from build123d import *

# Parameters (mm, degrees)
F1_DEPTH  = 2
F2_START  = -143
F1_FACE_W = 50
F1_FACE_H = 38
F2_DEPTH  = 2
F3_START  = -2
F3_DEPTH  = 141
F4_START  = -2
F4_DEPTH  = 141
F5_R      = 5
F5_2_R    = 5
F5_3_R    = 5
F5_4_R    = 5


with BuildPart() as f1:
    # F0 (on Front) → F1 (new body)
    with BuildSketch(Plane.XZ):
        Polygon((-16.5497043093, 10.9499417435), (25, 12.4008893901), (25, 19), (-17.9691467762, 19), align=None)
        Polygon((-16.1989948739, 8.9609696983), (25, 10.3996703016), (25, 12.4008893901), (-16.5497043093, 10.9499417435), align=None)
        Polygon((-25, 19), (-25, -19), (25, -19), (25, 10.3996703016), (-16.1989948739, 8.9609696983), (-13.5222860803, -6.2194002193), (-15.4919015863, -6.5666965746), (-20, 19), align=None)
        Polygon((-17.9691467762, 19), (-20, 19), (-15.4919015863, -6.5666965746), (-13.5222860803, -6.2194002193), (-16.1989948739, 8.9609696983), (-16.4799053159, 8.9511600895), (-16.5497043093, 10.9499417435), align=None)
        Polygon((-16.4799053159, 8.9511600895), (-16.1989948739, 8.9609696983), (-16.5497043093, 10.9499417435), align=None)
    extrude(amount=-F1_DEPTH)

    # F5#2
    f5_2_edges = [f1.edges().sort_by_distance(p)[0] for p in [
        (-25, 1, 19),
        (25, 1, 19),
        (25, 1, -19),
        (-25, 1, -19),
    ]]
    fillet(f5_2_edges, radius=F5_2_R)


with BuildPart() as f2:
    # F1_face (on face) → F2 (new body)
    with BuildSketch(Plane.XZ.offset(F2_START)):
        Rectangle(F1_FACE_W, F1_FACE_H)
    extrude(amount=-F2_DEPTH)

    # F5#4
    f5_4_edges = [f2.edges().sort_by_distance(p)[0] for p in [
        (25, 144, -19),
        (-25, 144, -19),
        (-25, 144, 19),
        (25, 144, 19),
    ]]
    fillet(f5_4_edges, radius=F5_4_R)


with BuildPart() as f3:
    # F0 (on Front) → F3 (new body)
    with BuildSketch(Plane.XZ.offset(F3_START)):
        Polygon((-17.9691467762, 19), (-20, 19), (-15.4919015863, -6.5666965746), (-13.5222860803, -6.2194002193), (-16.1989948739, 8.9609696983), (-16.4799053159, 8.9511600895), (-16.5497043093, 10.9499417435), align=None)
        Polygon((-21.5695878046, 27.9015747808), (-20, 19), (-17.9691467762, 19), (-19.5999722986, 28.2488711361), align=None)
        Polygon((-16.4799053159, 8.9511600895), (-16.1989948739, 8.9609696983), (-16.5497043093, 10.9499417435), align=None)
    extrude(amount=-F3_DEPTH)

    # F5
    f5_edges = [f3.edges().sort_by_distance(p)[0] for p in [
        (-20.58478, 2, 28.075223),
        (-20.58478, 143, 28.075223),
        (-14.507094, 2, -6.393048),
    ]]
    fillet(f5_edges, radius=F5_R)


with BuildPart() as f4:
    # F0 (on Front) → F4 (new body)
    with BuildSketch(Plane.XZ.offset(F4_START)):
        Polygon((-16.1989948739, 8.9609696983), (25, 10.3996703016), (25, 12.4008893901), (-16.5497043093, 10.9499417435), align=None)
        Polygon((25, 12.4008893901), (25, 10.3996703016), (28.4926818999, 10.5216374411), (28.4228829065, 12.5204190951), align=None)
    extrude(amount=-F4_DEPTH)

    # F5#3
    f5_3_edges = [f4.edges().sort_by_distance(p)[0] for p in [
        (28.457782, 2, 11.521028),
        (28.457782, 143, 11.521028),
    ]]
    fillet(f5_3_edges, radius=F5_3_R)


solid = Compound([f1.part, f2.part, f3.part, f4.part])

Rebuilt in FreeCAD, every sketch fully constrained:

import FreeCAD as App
import Part
import Sketcher
Q = App.Units.Quantity


def edges_at(feature, points):
    """Names of the edges that pass closest to the given points."""
    edges = feature.Shape.Edges
    near = lambda p: min(range(len(edges)), key=lambda i: edges[i].distToShape(Part.Vertex(*p))[0])
    return sorted({f"Edge{near(p) + 1}" for p in points})

doc = App.newDocument("Part")
body = doc.addObject("PartDesign::Body", "Body")

# Sketch on XZ plane
sketch1 = body.newObject("Sketcher::SketchObject", "Sketch")
sketch1.AttachmentSupport = (doc.getObject("XZ_Plane"), [""])
sketch1.MapMode = "FlatFace"
sketch1.addGeometry([
    Part.LineSegment(App.Vector(25, 19, 0), App.Vector(-25, 19, 0)),
    Part.LineSegment(App.Vector(-25, 19, 0), App.Vector(-25, -19, 0)),
    Part.LineSegment(App.Vector(-25, -19, 0), App.Vector(25, -19, 0)),
    Part.LineSegment(App.Vector(25, -19, 0), App.Vector(25, 19, 0)),
], False)
sketch1.addConstraint([
    Sketcher.Constraint("Coincident", 0, 2, 1, 1),
    Sketcher.Constraint("Coincident", 1, 2, 2, 1),
    Sketcher.Constraint("Coincident", 2, 2, 3, 1),
    Sketcher.Constraint("Coincident", 3, 2, 0, 1),
    Sketcher.Constraint("Horizontal", 0),
    Sketcher.Constraint("Vertical", 1),
    Sketcher.Constraint("Horizontal", 2),
    Sketcher.Constraint("Vertical", 3),
    Sketcher.Constraint("Symmetric", 0, 2, 2, 2, -1, 1),
    Sketcher.Constraint("DistanceX", 0, 2, 0, 1, Q("50 mm")),
    Sketcher.Constraint("DistanceY", 1, 2, 1, 1, Q("38 mm")),
])
pad1 = body.newObject("PartDesign::Pad", "Pad")
pad1.Profile = sketch1
pad1.Length = 2
pad1.Reversed = True
doc.recompute()

fillet = body.newObject("PartDesign::Fillet", "Fillet")
fillet.Base = (pad1, edges_at(pad1, [
    (-25, 1, 19),
    (25, 1, 19),
    (25, 1, -19),
    (-25, 1, -19),
]))
fillet.Radius = 5
body2 = doc.addObject("PartDesign::Body", "Body001")

# Sketch on XZ plane
sketch2 = body2.newObject("Sketcher::SketchObject", "Sketch001")
sketch2.AttachmentSupport = (doc.getObject("XZ_Plane001"), [""])
sketch2.MapMode = "FlatFace"
sketch2.AttachmentOffset = App.Placement(App.Vector(0, 0, -143), App.Rotation())
sketch2.addGeometry([
    Part.LineSegment(App.Vector(-25, 19, 0), App.Vector(-25, -19, 0)),
    Part.LineSegment(App.Vector(-25, -19, 0), App.Vector(25, -19, 0)),
    Part.LineSegment(App.Vector(25, -19, 0), App.Vector(25, 19, 0)),
    Part.LineSegment(App.Vector(25, 19, 0), App.Vector(-25, 19, 0)),
], False)
sketch2.addConstraint([
    Sketcher.Constraint("Coincident", 0, 2, 1, 1),
    Sketcher.Constraint("Coincident", 1, 2, 2, 1),
    Sketcher.Constraint("Coincident", 2, 2, 3, 1),
    Sketcher.Constraint("Coincident", 3, 2, 0, 1),
    Sketcher.Constraint("Vertical", 0),
    Sketcher.Constraint("Horizontal", 1),
    Sketcher.Constraint("Vertical", 2),
    Sketcher.Constraint("Horizontal", 3),
    Sketcher.Constraint("Symmetric", 0, 2, 2, 2, -1, 1),
    Sketcher.Constraint("DistanceX", 1, 1, 1, 2, Q("50 mm")),
    Sketcher.Constraint("DistanceY", 0, 2, 0, 1, Q("38 mm")),
])
pad2 = body2.newObject("PartDesign::Pad", "Pad001")
pad2.Profile = sketch2
pad2.Length = 2
pad2.Reversed = True
doc.recompute()

fillet2 = body2.newObject("PartDesign::Fillet", "Fillet001")
fillet2.Base = (pad2, edges_at(pad2, [
    (25, 144, -19),
    (-25, 144, -19),
    (-25, 144, 19),
    (25, 144, 19),
]))
fillet2.Radius = 5
body3 = doc.addObject("PartDesign::Body", "Body002")

# Sketch on XZ plane
sketch3 = body3.newObject("Sketcher::SketchObject", "Sketch002")
sketch3.AttachmentSupport = (doc.getObject("XZ_Plane002"), [""])
sketch3.MapMode = "FlatFace"
sketch3.AttachmentOffset = App.Placement(App.Vector(0, 0, -2), App.Rotation())
sketch3.addGeometry([
    Part.LineSegment(App.Vector(-20, 19, 0), App.Vector(-15.5, -6.6, 0)),  # 0
    Part.LineSegment(App.Vector(-15.5, -6.6, 0), App.Vector(-13.5, -6.2, 0)),  # 1
    Part.LineSegment(App.Vector(-13.5, -6.2, 0), App.Vector(-16.2, 9, 0)),  # 2
    Part.LineSegment(App.Vector(-16.2, 9, 0), App.Vector(-16.5, 10.9, 0)),  # 3
    Part.LineSegment(App.Vector(-16.5, 10.9, 0), App.Vector(-19.6, 28.2, 0)),  # 4
    Part.LineSegment(App.Vector(-19.6, 28.2, 0), App.Vector(-21.6, 27.9, 0)),  # 5
    Part.LineSegment(App.Vector(-21.6, 27.9, 0), App.Vector(-20, 19, 0)),  # 6
], False)
sketch3.addConstraint([
    Sketcher.Constraint("Coincident", 0, 2, 1, 1),
    Sketcher.Constraint("Coincident", 1, 2, 2, 1),
    Sketcher.Constraint("Coincident", 2, 2, 3, 1),
    Sketcher.Constraint("Coincident", 3, 2, 4, 1),
    Sketcher.Constraint("Coincident", 4, 2, 5, 1),
    Sketcher.Constraint("Coincident", 5, 2, 6, 1),
    Sketcher.Constraint("Coincident", 6, 2, 0, 1),
    Sketcher.Constraint("Perpendicular", 0, 1),
    Sketcher.Constraint("Perpendicular", 1, 2),
    Sketcher.Constraint("Parallel", 2, 3),
    Sketcher.Constraint("Parallel", 3, 4),
    Sketcher.Constraint("Perpendicular", 4, 5),
    Sketcher.Constraint("Perpendicular", 5, 6),
    Sketcher.Constraint("Angle", 0, Q("-80 deg")),
    Sketcher.Constraint("Distance", 1, Q("2 mm")),
    Sketcher.Constraint("DistanceX", 6, 2, -1, 1, Q("20 mm")),
    Sketcher.Constraint("DistanceY", -1, 1, 6, 2, Q("19 mm")),
    Sketcher.Constraint("DistanceX", 0, 2, -1, 1, Q("15.491902 mm")),
    Sketcher.Constraint("DistanceY", 2, 2, 4, 2, Q("19.287901 mm")),
    Sketcher.Constraint("DistanceX", 5, 2, 1, 2, Q("8.047302 mm")),
    Sketcher.Constraint("DistanceY", -1, 1, 3, 2, Q("10.949942 mm")),
])
pad3 = body3.newObject("PartDesign::Pad", "Pad002")
pad3.Profile = sketch3
pad3.Length = 141
pad3.Reversed = True
doc.recompute()

fillet3 = body3.newObject("PartDesign::Fillet", "Fillet002")
fillet3.Base = (pad3, edges_at(pad3, [(-20.585, 2, 28.075), (-20.585, 143, 28.075), (-14.507, 2, -6.393)]))
fillet3.Radius = 5
body4 = doc.addObject("PartDesign::Body", "Body003")

# Sketch on XZ plane
sketch4 = body4.newObject("Sketcher::SketchObject", "Sketch003")
sketch4.AttachmentSupport = (doc.getObject("XZ_Plane003"), [""])
sketch4.MapMode = "FlatFace"
sketch4.AttachmentOffset = App.Placement(App.Vector(0, 0, -2), App.Rotation())
sketch4.addGeometry([
    Part.LineSegment(App.Vector(-16.2, 9, 0), App.Vector(25, 10.4, 0)),  # 0
    Part.LineSegment(App.Vector(25, 10.4, 0), App.Vector(28.5, 10.5, 0)),  # 1
    Part.LineSegment(App.Vector(28.5, 10.5, 0), App.Vector(28.4, 12.5, 0)),  # 2
    Part.LineSegment(App.Vector(28.4, 12.5, 0), App.Vector(25, 12.4, 0)),  # 3
    Part.LineSegment(App.Vector(25, 12.4, 0), App.Vector(-16.5, 10.9, 0)),  # 4
    Part.LineSegment(App.Vector(-16.5, 10.9, 0), App.Vector(-16.2, 9, 0)),  # 5
], False)
sketch4.addConstraint([
    Sketcher.Constraint("Coincident", 0, 2, 1, 1),
    Sketcher.Constraint("Coincident", 1, 2, 2, 1),
    Sketcher.Constraint("Coincident", 2, 2, 3, 1),
    Sketcher.Constraint("Coincident", 3, 2, 4, 1),
    Sketcher.Constraint("Coincident", 4, 2, 5, 1),
    Sketcher.Constraint("Coincident", 5, 2, 0, 1),
    Sketcher.Constraint("Parallel", 0, 1),
    Sketcher.Constraint("Perpendicular", 1, 2),
    Sketcher.Constraint("Perpendicular", 2, 3),
    Sketcher.Constraint("Parallel", 3, 4),
    Sketcher.Constraint("Vertical", 0, 2, 3, 2),
    Sketcher.Constraint("Angle", 0, Q("2 deg")),
    Sketcher.Constraint("Angle", 5, Q("-80 deg")),
    Sketcher.Constraint("Distance", 2, Q("2 mm")),
    Sketcher.Constraint("DistanceX", -1, 1, 0, 2, Q("25 mm")),
    Sketcher.Constraint("DistanceY", 5, 2, 0, 2, Q("1.438701 mm")),
    Sketcher.Constraint("Distance", 1, Q("3.494811 mm")),
    Sketcher.Constraint("DistanceY", -1, 1, 0, 2, Q("10.39967 mm")),
])
pad4 = body4.newObject("PartDesign::Pad", "Pad003")
pad4.Profile = sketch4
pad4.Length = 141
pad4.Reversed = True
doc.recompute()

fillet4 = body4.newObject("PartDesign::Fillet", "Fillet003")
fillet4.Base = (pad4, edges_at(pad4, [(28.458, 2, 11.521), (28.458, 143, 11.521)]))
fillet4.Radius = 5

doc.recompute()
